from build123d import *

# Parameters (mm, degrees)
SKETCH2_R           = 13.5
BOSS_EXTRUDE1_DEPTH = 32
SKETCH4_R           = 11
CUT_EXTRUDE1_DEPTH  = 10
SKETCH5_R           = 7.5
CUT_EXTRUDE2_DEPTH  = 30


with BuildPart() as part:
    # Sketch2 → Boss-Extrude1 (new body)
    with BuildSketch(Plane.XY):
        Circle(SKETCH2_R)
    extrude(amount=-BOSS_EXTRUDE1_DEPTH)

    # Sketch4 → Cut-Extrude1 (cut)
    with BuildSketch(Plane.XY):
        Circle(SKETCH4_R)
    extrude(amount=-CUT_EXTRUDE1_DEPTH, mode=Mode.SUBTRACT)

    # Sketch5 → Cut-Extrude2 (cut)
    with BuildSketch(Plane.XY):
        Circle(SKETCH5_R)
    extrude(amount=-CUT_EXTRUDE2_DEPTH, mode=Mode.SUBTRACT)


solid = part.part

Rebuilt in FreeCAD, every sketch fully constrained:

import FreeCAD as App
import Part
import Sketcher
from FreeCAD import Vector
Q = App.Units.Quantity

doc = App.newDocument("Part")
body = doc.addObject("PartDesign::Body", "Body")

sketch1 = doc.addObject("Sketcher::SketchObject", "Sketch")
body.addObject(sketch1)
sketch1.AttachmentSupport = (doc.XY_Plane, [""])
sketch1.MapMode = "FlatFace"
sketch1.addGeometry(Part.Circle(Vector(0, 0, 0), Vector(0, 0, 1), 14), False)
sketch1.addConstraint(Sketcher.Constraint("Coincident", 0, 3, -1, 1))
sketch1.addConstraint(Sketcher.Constraint("Diameter", 0, Q("27 mm")))
pad1 = doc.addObject("PartDesign::Pad", "Pad")
body.addObject(pad1)
pad1.Profile = sketch1
pad1.Length = 32
pad1.Reversed = True

sketch2 = doc.addObject("Sketcher::SketchObject", "Sketch001")
body.addObject(sketch2)
sketch2.AttachmentSupport = (doc.XY_Plane, [""])
sketch2.MapMode = "FlatFace"
sketch2.addGeometry(Part.Circle(Vector(0, 0, 0), Vector(0, 0, 1), 11), False)
sketch2.addConstraint(Sketcher.Constraint("Coincident", 0, 3, -1, 1))
sketch2.addConstraint(Sketcher.Constraint("Diameter", 0, Q("22 mm")))
pocket1 = doc.addObject("PartDesign::Pocket", "Pocket")
body.addObject(pocket1)
pocket1.Profile = sketch2
pocket1.Length = 10

sketch3 = doc.addObject("Sketcher::SketchObject", "Sketch002")
body.addObject(sketch3)
sketch3.AttachmentSupport = (doc.XY_Plane, [""])
sketch3.MapMode = "FlatFace"
sketch3.addGeometry(Part.Circle(Vector(0, 0, 0), Vector(0, 0, 1), 8), False)
sketch3.addConstraint(Sketcher.Constraint("Coincident", 0, 3, -1, 1))
sketch3.addConstraint(Sketcher.Constraint("Diameter", 0, Q("15 mm")))
pocket2 = doc.addObject("PartDesign::Pocket", "Pocket001")
body.addObject(pocket2)
pocket2.Profile = sketch3
pocket2.Length = 30

doc.recompute()
